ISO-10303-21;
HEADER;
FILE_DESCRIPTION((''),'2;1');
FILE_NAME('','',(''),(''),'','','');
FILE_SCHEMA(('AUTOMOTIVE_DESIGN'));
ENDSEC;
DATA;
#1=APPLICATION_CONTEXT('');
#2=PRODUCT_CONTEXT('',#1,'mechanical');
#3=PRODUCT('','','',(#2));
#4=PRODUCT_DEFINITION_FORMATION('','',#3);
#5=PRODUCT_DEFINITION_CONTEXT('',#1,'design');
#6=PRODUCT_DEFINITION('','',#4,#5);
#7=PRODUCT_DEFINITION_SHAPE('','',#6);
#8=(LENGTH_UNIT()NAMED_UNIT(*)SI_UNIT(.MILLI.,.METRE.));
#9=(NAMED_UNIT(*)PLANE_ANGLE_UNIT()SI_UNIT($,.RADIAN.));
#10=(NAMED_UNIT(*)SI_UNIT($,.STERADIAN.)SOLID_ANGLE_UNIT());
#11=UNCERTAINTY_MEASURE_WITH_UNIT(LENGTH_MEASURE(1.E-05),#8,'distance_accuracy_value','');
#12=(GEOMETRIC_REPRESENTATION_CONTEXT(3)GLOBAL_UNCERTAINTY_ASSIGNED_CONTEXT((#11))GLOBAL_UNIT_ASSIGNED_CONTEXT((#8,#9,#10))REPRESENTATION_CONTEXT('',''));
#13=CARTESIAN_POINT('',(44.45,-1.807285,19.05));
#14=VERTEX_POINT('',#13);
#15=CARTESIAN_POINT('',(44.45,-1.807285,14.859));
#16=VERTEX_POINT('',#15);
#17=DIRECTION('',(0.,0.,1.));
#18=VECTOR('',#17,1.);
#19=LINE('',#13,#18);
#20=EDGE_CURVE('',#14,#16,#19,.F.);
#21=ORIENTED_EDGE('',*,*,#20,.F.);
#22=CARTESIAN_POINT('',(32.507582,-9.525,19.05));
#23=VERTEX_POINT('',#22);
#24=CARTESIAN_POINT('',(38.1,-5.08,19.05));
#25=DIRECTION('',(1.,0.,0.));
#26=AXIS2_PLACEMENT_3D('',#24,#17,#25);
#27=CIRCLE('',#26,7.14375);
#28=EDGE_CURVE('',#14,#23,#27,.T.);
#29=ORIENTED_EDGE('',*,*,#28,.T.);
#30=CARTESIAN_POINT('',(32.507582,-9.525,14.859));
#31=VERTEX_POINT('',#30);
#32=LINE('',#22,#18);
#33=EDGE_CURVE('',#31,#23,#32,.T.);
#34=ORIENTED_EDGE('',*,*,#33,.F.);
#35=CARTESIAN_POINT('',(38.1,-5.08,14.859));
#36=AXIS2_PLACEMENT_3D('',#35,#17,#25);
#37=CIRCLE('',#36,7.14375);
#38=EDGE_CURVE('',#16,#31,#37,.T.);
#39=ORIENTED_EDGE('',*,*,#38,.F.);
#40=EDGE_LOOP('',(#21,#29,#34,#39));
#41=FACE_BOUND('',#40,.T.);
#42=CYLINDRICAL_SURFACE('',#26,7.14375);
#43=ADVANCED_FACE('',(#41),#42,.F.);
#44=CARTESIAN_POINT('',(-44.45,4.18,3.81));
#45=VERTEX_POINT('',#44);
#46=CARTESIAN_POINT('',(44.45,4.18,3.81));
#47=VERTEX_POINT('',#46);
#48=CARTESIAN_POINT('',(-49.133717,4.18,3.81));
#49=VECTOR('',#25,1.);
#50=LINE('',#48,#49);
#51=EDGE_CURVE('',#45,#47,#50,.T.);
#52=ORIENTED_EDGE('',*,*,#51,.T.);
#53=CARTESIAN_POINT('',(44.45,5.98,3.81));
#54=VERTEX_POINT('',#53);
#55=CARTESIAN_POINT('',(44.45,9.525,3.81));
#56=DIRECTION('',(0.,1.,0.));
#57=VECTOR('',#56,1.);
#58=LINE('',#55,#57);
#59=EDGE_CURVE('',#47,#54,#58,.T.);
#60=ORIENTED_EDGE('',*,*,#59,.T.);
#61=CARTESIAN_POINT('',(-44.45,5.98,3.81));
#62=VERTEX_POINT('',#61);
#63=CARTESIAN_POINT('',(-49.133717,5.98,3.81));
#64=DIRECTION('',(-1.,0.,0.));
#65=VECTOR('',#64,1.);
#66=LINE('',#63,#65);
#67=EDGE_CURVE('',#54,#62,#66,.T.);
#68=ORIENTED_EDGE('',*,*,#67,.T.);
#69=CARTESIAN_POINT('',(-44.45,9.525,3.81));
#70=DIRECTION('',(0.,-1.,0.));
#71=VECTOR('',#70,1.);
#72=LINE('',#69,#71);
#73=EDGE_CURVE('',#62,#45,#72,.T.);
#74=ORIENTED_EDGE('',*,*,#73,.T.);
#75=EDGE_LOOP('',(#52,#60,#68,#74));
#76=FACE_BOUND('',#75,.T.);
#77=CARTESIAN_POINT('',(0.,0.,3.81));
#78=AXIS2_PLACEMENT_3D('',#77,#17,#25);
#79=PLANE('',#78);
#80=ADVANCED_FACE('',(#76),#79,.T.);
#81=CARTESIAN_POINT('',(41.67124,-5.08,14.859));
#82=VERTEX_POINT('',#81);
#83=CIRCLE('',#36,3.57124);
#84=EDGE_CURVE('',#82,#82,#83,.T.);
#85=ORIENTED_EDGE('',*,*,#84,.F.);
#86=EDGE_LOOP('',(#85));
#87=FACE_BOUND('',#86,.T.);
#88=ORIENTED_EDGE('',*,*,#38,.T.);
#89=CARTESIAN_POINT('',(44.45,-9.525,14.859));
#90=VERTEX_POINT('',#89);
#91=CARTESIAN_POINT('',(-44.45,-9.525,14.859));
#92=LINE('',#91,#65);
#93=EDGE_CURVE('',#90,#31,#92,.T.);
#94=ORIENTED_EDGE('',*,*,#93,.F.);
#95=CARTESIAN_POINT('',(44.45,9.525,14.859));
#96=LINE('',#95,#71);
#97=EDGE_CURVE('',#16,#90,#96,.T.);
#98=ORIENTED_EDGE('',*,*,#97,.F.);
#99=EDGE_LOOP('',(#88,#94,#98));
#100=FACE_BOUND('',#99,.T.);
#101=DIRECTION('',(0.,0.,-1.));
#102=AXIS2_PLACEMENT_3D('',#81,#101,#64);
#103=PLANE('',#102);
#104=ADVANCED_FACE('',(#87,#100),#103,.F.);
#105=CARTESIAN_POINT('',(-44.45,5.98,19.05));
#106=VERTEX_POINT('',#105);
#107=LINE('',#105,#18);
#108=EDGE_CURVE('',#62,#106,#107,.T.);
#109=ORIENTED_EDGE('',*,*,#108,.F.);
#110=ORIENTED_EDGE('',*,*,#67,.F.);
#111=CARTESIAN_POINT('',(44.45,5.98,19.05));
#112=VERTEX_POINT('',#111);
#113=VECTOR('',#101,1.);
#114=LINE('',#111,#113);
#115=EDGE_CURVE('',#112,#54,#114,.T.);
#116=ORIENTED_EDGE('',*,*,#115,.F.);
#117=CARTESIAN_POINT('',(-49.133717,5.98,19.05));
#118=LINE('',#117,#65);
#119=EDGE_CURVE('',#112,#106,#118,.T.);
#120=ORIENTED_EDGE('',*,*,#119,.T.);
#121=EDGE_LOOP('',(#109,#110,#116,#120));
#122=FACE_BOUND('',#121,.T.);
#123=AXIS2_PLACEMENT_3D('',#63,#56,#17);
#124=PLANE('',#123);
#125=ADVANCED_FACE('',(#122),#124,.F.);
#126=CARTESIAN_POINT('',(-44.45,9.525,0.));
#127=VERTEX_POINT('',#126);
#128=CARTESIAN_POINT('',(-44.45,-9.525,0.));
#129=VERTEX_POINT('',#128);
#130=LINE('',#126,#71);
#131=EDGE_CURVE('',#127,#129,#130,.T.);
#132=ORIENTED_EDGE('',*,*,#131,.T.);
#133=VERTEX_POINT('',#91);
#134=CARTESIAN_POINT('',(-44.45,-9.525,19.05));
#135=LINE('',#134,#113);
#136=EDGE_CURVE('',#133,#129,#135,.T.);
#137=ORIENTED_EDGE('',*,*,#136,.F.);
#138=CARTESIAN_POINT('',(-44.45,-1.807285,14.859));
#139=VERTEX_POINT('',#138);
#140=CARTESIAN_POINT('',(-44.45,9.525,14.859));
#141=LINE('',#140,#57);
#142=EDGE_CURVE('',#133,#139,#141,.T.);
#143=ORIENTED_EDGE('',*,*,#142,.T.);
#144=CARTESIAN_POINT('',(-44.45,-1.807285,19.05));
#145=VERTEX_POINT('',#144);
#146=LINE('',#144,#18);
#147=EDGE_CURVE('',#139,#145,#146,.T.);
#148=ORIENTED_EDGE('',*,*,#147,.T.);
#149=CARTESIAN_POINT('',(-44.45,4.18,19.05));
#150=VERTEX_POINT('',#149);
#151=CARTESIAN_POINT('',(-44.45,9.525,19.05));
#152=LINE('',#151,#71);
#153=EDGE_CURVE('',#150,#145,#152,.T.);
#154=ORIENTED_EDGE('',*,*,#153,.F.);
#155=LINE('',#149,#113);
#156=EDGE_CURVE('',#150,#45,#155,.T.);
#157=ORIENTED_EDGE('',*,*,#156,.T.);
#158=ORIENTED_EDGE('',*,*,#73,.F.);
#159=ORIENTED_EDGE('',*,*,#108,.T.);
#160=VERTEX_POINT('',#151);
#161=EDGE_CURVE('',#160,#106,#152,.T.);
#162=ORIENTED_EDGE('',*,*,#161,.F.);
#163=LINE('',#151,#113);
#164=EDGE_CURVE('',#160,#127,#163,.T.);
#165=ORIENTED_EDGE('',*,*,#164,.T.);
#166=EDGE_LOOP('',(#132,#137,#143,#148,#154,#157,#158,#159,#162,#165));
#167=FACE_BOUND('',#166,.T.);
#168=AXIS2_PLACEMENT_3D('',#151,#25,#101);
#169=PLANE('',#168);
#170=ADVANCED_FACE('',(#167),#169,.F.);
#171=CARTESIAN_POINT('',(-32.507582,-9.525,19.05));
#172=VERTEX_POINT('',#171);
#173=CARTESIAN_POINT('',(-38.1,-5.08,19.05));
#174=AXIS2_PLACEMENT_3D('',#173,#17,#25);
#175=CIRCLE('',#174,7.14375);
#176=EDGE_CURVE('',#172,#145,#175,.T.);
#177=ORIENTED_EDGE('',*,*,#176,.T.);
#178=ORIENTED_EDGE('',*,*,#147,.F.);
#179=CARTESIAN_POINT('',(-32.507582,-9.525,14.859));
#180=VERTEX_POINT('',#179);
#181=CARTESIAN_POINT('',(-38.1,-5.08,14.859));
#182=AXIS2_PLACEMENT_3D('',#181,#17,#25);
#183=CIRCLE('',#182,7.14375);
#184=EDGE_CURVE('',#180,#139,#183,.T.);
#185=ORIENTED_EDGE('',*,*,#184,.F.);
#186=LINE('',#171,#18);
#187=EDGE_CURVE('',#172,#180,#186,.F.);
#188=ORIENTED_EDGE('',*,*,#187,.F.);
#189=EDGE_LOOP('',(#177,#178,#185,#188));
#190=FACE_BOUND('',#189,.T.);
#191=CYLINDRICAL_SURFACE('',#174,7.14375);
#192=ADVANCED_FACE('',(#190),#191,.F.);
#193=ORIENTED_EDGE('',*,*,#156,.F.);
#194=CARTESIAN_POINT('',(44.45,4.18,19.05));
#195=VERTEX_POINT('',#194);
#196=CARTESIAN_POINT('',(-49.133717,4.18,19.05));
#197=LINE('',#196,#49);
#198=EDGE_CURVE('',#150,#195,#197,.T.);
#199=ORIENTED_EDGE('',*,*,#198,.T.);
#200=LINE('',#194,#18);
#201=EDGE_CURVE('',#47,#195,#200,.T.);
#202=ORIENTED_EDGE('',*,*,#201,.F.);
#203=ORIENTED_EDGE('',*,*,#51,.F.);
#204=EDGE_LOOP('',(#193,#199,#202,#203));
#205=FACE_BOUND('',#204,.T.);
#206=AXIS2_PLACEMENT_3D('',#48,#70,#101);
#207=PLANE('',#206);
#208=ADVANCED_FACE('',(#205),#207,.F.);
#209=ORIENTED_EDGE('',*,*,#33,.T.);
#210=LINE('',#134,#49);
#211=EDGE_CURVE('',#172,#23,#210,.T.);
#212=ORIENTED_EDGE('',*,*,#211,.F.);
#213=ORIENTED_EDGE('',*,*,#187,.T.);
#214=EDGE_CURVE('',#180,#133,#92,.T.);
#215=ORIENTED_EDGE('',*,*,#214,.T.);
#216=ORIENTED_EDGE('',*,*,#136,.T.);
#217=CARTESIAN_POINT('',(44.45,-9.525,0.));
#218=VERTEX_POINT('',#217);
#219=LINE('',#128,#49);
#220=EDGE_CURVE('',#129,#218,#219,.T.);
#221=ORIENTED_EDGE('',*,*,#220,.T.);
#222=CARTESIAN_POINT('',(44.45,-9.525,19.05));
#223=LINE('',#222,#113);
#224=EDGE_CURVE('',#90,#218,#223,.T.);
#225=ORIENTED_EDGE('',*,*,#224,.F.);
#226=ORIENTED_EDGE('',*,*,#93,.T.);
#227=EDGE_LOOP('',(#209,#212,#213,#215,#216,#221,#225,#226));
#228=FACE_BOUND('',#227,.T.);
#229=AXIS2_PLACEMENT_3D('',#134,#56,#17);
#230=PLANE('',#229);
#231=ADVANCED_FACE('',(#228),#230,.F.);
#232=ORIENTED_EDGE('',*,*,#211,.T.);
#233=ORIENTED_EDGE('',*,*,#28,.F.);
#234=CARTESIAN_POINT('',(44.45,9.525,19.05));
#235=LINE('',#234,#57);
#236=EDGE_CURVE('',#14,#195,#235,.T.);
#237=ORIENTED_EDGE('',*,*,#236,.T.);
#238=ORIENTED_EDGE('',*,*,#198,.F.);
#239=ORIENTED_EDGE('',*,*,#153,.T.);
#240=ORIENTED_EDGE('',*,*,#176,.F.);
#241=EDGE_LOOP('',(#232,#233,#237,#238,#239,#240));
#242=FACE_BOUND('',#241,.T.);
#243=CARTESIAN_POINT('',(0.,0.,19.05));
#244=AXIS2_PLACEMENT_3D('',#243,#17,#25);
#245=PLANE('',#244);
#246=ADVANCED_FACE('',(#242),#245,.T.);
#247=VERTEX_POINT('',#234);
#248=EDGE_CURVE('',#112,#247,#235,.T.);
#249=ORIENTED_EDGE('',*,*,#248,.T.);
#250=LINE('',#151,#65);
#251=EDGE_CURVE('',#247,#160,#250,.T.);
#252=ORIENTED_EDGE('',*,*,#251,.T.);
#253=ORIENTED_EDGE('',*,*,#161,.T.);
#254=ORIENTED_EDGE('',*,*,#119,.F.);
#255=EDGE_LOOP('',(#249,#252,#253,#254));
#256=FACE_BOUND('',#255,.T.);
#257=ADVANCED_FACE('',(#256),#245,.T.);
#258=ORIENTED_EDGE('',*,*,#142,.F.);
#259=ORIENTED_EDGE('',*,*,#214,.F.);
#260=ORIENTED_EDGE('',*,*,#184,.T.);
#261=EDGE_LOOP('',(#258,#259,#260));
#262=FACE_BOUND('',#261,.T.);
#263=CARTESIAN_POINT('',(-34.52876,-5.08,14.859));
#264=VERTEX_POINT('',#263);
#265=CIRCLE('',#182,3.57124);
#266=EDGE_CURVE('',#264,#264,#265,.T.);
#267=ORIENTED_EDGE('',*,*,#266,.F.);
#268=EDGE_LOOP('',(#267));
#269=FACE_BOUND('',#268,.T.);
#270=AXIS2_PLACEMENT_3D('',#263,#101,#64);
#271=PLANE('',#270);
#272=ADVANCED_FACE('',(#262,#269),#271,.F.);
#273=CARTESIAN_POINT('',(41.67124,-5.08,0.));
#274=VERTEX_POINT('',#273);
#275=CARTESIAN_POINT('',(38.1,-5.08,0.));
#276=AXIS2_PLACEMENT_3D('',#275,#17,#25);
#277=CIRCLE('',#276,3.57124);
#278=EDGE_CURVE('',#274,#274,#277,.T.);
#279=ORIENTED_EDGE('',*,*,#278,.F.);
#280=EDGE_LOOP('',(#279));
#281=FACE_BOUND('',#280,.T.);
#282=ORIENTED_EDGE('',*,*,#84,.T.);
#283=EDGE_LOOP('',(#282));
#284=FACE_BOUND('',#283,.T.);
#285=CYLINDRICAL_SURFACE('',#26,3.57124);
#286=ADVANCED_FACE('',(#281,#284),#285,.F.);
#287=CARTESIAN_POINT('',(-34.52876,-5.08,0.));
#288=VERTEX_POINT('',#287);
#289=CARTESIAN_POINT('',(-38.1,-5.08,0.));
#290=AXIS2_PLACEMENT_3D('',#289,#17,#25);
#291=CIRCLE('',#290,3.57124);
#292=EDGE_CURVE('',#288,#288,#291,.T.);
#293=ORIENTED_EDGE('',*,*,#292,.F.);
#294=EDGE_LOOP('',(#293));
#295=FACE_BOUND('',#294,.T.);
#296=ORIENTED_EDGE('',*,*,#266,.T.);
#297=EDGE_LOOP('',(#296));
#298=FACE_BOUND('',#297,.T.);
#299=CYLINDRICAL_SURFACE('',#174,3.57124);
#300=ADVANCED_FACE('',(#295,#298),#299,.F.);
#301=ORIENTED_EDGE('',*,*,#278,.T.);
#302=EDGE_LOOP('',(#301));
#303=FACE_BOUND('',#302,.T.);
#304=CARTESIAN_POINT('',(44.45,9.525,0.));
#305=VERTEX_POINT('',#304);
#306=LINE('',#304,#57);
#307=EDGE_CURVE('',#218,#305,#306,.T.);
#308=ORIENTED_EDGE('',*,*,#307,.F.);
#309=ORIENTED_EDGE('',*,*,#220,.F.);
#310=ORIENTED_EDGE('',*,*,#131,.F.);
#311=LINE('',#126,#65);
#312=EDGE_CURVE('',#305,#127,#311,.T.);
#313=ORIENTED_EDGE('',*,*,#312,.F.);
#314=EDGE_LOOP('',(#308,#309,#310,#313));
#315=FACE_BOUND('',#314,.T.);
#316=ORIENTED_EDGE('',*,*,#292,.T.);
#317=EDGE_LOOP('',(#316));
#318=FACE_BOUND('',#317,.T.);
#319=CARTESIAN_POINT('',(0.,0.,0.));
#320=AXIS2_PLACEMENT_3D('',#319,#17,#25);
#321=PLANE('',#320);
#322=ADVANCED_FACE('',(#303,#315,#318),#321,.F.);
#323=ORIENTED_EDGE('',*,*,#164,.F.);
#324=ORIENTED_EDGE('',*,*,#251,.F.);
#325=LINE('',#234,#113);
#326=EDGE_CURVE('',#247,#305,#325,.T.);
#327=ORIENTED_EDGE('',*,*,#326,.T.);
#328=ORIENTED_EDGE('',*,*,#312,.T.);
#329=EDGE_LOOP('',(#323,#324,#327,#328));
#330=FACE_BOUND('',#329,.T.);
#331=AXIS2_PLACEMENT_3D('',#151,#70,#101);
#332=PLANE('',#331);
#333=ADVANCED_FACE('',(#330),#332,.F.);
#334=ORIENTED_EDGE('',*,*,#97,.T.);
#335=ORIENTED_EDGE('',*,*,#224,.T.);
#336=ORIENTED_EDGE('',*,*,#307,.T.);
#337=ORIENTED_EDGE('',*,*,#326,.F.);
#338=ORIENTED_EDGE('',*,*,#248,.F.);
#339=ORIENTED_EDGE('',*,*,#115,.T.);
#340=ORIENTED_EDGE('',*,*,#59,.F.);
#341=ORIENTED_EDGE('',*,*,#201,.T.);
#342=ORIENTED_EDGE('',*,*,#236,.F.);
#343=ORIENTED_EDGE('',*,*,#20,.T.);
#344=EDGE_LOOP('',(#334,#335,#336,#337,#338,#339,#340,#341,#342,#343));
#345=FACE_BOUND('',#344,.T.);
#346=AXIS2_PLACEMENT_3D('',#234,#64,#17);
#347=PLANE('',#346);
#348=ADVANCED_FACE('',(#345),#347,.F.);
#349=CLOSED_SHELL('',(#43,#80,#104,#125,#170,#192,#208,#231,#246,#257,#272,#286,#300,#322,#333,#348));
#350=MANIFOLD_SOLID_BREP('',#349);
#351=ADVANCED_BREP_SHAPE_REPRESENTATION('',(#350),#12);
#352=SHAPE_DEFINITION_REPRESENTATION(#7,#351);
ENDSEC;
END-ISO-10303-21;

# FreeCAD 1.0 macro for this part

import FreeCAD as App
import Part
import Sketcher
from FreeCAD import Vector
Q = App.Units.Quantity

doc = App.newDocument("Part")
body = doc.addObject("PartDesign::Body", "Body")

sketch1 = body.newObject("Sketcher::SketchObject", "Sketch")
sketch1.AttachmentSupport = (doc.getObject("XY_Plane"), [""])
sketch1.MapMode = "FlatFace"
sketch1.addGeometry([
    Part.LineSegment(Vector(-44, 10, 0), Vector(-44, -10, 0)),
    Part.LineSegment(Vector(-44, -10, 0), Vector(44, -10, 0)),
    Part.LineSegment(Vector(44, -10, 0), Vector(44, 10, 0)),
    Part.LineSegment(Vector(44, 10, 0), Vector(-44, 10, 0)),
], False)
sketch1.addConstraint([
    Sketcher.Constraint("Coincident", 0, 2, 1, 1),
    Sketcher.Constraint("Coincident", 1, 2, 2, 1),
    Sketcher.Constraint("Coincident", 2, 2, 3, 1),
    Sketcher.Constraint("Coincident", 3, 2, 0, 1),
    Sketcher.Constraint("Vertical", 0),
    Sketcher.Constraint("Horizontal", 1),
    Sketcher.Constraint("Vertical", 2),
    Sketcher.Constraint("Horizontal", 3),
    Sketcher.Constraint("Symmetric", 0, 2, 2, 2, -1, 1),
    Sketcher.Constraint("DistanceX", 1, 1, 1, 2, Q("3.5 in")),
    Sketcher.Constraint("DistanceY", 0, 2, 0, 1, Q("0.75 in")),
])
pad1 = body.newObject("PartDesign::Pad", "Pad")
pad1.Profile = sketch1
pad1.Length = Q("0.75 in")

sketch2 = body.newObject("Sketcher::SketchObject", "Sketch001")
sketch2.AttachmentSupport = (doc.getObject("XY_Plane"), [""])
sketch2.MapMode = "FlatFace"
sketch2.AttachmentOffset = App.Placement(Vector(0, 0, 0.75 * 25.4), App.Rotation())
sketch2.addGeometry([
    Part.Circle(Vector(-38.1, -5.1, 0), Vector(0, 0, 1), 3.6),
    Part.Circle(Vector(38.1, -5.1, 0), Vector(0, 0, 1), 3.6),
], False)
sketch2.addConstraint([
    Sketcher.Constraint("Equal", 0, 1),
    Sketcher.Constraint("Symmetric", 0, 3, 1, 3, -2),
    Sketcher.Constraint("DistanceX", 0, 3, 1, 3, Q("3 in")),
    Sketcher.Constraint("Diameter", 0, Q("0.2812 in")),
    Sketcher.Constraint("DistanceY", 0, 3, -1, 1, Q("0.2 in")),
])
doc.recompute()
hole = body.newObject("PartDesign::Hole", "Hole")
hole.Profile = sketch2
hole.ThreadType = "None"
hole.Diameter = Q("0.2812 in")
hole.DepthType = "ThroughAll"
hole.HoleCutType = "Counterbore"
hole.HoleCutDiameter = Q("0.5625 in")
hole.HoleCutDepth = Q("0.165 in")

sketch3 = body.newObject("Sketcher::SketchObject", "Sketch002")
sketch3.AttachmentSupport = (doc.getObject("XY_Plane"), [""])
sketch3.MapMode = "FlatFace"
sketch3.AttachmentOffset = App.Placement(Vector(0, 0, 0.75 * 25.4), App.Rotation())
sketch3.addGeometry([
    Part.LineSegment(Vector(-49.1, 6, 0), Vector(-49.1, 4.2, 0)),
    Part.LineSegment(Vector(-49.1, 4.2, 0), Vector(49.1, 4.2, 0)),
    Part.LineSegment(Vector(49.1, 4.2, 0), Vector(49.1, 6, 0)),
    Part.LineSegment(Vector(49.1, 6, 0), Vector(-49.1, 6, 0)),
], False)
sketch3.addConstraint([
    Sketcher.Constraint("Coincident", 0, 2, 1, 1),
    Sketcher.Constraint("Coincident", 1, 2, 2, 1),
    Sketcher.Constraint("Coincident", 2, 2, 3, 1),
    Sketcher.Constraint("Coincident", 3, 2, 0, 1),
    Sketcher.Constraint("Vertical", 0),
    Sketcher.Constraint("Horizontal", 1),
    Sketcher.Constraint("Vertical", 2),
    Sketcher.Constraint("Horizontal", 3),
    Sketcher.Constraint("DistanceY", 0, 2, 0, 1, Q("1.8 mm")),
    Sketcher.Constraint("DistanceY", -1, 1, 0, 2, Q("4.18 mm")),
    Sketcher.Constraint("DistanceX", 1, 1, 1, 2, Q("98.267434 mm")),
    Sketcher.Constraint("DistanceX", 0, 2, -1, 1, Q("49.133717 mm")),
])
pocket1 = body.newObject("PartDesign::Pocket", "Pocket")
pocket1.Profile = sketch3
pocket1.Length = Q("0.6 in")

sketch4 = body.newObject("Sketcher::SketchObject", "Sketch003")
sketch4.AttachmentSupport = (doc.getObject("XY_Plane"), [""])
sketch4.MapMode = "FlatFace"
sketch4.AttachmentOffset = App.Placement(Vector(0, 0, 0.585 * 25.4), App.Rotation())
sketch4.addGeometry([
    Part.Circle(Vector(-47, -9, 0), Vector(0, 0, 1), 6),
    Part.Circle(Vector(50, -13, 0), Vector(0, 0, 1), 9),
], False)
sketch4.addConstraint([
    Sketcher.Constraint("Diameter", 0, Q("12.339493 mm")),
    Sketcher.Constraint("Diameter", 1, Q("17.525196 mm")),
    Sketcher.Constraint("DistanceX", 0, 3, -1, 1, Q("47.154601 mm")),
    Sketcher.Constraint("DistanceX", -1, 1, 1, 3, Q("49.650008 mm")),
    Sketcher.Constraint("DistanceY", 1, 3, 0, 3, Q("3.614039 mm")),
    Sketcher.Constraint("DistanceY", 0, 3, -1, 1, Q("9.207194 mm")),
])
pocket2 = body.newObject("PartDesign::Pocket", "Pocket001")
pocket2.Profile = sketch4
pocket2.Length = Q("0.6 in")
pocket2.Reversed = True

doc.recompute()
